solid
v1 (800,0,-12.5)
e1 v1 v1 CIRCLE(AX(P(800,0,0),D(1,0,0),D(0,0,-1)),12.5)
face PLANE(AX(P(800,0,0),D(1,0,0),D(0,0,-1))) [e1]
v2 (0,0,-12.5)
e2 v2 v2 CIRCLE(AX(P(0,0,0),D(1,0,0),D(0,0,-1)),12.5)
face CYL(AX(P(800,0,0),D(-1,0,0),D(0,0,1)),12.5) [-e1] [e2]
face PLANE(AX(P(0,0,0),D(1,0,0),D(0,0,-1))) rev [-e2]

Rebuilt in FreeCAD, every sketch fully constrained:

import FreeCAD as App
import Part
import Sketcher

doc = App.newDocument("Part")
body = doc.addObject("PartDesign::Body", "Body")

sketch1 = doc.addObject("Sketcher::SketchObject", "Sketch")
body.addObject(sketch1)
sketch1.AttachmentSupport = (doc.YZ_Plane, [""])
sketch1.MapMode = "FlatFace"
sketch1.addGeometry(Part.Circle(App.Vector(0, 0, 0), App.Vector(0, 0, 1), 12), False)
sketch1.addConstraint([
    Sketcher.Constraint("Coincident", 0, 3, -1, 1),
    Sketcher.Constraint("Diameter", 0, 25.0),
])
pad1 = doc.addObject("PartDesign::Pad", "Pad")
body.addObject(pad1)
pad1.Profile = sketch1
pad1.Length = 800

doc.recompute()
